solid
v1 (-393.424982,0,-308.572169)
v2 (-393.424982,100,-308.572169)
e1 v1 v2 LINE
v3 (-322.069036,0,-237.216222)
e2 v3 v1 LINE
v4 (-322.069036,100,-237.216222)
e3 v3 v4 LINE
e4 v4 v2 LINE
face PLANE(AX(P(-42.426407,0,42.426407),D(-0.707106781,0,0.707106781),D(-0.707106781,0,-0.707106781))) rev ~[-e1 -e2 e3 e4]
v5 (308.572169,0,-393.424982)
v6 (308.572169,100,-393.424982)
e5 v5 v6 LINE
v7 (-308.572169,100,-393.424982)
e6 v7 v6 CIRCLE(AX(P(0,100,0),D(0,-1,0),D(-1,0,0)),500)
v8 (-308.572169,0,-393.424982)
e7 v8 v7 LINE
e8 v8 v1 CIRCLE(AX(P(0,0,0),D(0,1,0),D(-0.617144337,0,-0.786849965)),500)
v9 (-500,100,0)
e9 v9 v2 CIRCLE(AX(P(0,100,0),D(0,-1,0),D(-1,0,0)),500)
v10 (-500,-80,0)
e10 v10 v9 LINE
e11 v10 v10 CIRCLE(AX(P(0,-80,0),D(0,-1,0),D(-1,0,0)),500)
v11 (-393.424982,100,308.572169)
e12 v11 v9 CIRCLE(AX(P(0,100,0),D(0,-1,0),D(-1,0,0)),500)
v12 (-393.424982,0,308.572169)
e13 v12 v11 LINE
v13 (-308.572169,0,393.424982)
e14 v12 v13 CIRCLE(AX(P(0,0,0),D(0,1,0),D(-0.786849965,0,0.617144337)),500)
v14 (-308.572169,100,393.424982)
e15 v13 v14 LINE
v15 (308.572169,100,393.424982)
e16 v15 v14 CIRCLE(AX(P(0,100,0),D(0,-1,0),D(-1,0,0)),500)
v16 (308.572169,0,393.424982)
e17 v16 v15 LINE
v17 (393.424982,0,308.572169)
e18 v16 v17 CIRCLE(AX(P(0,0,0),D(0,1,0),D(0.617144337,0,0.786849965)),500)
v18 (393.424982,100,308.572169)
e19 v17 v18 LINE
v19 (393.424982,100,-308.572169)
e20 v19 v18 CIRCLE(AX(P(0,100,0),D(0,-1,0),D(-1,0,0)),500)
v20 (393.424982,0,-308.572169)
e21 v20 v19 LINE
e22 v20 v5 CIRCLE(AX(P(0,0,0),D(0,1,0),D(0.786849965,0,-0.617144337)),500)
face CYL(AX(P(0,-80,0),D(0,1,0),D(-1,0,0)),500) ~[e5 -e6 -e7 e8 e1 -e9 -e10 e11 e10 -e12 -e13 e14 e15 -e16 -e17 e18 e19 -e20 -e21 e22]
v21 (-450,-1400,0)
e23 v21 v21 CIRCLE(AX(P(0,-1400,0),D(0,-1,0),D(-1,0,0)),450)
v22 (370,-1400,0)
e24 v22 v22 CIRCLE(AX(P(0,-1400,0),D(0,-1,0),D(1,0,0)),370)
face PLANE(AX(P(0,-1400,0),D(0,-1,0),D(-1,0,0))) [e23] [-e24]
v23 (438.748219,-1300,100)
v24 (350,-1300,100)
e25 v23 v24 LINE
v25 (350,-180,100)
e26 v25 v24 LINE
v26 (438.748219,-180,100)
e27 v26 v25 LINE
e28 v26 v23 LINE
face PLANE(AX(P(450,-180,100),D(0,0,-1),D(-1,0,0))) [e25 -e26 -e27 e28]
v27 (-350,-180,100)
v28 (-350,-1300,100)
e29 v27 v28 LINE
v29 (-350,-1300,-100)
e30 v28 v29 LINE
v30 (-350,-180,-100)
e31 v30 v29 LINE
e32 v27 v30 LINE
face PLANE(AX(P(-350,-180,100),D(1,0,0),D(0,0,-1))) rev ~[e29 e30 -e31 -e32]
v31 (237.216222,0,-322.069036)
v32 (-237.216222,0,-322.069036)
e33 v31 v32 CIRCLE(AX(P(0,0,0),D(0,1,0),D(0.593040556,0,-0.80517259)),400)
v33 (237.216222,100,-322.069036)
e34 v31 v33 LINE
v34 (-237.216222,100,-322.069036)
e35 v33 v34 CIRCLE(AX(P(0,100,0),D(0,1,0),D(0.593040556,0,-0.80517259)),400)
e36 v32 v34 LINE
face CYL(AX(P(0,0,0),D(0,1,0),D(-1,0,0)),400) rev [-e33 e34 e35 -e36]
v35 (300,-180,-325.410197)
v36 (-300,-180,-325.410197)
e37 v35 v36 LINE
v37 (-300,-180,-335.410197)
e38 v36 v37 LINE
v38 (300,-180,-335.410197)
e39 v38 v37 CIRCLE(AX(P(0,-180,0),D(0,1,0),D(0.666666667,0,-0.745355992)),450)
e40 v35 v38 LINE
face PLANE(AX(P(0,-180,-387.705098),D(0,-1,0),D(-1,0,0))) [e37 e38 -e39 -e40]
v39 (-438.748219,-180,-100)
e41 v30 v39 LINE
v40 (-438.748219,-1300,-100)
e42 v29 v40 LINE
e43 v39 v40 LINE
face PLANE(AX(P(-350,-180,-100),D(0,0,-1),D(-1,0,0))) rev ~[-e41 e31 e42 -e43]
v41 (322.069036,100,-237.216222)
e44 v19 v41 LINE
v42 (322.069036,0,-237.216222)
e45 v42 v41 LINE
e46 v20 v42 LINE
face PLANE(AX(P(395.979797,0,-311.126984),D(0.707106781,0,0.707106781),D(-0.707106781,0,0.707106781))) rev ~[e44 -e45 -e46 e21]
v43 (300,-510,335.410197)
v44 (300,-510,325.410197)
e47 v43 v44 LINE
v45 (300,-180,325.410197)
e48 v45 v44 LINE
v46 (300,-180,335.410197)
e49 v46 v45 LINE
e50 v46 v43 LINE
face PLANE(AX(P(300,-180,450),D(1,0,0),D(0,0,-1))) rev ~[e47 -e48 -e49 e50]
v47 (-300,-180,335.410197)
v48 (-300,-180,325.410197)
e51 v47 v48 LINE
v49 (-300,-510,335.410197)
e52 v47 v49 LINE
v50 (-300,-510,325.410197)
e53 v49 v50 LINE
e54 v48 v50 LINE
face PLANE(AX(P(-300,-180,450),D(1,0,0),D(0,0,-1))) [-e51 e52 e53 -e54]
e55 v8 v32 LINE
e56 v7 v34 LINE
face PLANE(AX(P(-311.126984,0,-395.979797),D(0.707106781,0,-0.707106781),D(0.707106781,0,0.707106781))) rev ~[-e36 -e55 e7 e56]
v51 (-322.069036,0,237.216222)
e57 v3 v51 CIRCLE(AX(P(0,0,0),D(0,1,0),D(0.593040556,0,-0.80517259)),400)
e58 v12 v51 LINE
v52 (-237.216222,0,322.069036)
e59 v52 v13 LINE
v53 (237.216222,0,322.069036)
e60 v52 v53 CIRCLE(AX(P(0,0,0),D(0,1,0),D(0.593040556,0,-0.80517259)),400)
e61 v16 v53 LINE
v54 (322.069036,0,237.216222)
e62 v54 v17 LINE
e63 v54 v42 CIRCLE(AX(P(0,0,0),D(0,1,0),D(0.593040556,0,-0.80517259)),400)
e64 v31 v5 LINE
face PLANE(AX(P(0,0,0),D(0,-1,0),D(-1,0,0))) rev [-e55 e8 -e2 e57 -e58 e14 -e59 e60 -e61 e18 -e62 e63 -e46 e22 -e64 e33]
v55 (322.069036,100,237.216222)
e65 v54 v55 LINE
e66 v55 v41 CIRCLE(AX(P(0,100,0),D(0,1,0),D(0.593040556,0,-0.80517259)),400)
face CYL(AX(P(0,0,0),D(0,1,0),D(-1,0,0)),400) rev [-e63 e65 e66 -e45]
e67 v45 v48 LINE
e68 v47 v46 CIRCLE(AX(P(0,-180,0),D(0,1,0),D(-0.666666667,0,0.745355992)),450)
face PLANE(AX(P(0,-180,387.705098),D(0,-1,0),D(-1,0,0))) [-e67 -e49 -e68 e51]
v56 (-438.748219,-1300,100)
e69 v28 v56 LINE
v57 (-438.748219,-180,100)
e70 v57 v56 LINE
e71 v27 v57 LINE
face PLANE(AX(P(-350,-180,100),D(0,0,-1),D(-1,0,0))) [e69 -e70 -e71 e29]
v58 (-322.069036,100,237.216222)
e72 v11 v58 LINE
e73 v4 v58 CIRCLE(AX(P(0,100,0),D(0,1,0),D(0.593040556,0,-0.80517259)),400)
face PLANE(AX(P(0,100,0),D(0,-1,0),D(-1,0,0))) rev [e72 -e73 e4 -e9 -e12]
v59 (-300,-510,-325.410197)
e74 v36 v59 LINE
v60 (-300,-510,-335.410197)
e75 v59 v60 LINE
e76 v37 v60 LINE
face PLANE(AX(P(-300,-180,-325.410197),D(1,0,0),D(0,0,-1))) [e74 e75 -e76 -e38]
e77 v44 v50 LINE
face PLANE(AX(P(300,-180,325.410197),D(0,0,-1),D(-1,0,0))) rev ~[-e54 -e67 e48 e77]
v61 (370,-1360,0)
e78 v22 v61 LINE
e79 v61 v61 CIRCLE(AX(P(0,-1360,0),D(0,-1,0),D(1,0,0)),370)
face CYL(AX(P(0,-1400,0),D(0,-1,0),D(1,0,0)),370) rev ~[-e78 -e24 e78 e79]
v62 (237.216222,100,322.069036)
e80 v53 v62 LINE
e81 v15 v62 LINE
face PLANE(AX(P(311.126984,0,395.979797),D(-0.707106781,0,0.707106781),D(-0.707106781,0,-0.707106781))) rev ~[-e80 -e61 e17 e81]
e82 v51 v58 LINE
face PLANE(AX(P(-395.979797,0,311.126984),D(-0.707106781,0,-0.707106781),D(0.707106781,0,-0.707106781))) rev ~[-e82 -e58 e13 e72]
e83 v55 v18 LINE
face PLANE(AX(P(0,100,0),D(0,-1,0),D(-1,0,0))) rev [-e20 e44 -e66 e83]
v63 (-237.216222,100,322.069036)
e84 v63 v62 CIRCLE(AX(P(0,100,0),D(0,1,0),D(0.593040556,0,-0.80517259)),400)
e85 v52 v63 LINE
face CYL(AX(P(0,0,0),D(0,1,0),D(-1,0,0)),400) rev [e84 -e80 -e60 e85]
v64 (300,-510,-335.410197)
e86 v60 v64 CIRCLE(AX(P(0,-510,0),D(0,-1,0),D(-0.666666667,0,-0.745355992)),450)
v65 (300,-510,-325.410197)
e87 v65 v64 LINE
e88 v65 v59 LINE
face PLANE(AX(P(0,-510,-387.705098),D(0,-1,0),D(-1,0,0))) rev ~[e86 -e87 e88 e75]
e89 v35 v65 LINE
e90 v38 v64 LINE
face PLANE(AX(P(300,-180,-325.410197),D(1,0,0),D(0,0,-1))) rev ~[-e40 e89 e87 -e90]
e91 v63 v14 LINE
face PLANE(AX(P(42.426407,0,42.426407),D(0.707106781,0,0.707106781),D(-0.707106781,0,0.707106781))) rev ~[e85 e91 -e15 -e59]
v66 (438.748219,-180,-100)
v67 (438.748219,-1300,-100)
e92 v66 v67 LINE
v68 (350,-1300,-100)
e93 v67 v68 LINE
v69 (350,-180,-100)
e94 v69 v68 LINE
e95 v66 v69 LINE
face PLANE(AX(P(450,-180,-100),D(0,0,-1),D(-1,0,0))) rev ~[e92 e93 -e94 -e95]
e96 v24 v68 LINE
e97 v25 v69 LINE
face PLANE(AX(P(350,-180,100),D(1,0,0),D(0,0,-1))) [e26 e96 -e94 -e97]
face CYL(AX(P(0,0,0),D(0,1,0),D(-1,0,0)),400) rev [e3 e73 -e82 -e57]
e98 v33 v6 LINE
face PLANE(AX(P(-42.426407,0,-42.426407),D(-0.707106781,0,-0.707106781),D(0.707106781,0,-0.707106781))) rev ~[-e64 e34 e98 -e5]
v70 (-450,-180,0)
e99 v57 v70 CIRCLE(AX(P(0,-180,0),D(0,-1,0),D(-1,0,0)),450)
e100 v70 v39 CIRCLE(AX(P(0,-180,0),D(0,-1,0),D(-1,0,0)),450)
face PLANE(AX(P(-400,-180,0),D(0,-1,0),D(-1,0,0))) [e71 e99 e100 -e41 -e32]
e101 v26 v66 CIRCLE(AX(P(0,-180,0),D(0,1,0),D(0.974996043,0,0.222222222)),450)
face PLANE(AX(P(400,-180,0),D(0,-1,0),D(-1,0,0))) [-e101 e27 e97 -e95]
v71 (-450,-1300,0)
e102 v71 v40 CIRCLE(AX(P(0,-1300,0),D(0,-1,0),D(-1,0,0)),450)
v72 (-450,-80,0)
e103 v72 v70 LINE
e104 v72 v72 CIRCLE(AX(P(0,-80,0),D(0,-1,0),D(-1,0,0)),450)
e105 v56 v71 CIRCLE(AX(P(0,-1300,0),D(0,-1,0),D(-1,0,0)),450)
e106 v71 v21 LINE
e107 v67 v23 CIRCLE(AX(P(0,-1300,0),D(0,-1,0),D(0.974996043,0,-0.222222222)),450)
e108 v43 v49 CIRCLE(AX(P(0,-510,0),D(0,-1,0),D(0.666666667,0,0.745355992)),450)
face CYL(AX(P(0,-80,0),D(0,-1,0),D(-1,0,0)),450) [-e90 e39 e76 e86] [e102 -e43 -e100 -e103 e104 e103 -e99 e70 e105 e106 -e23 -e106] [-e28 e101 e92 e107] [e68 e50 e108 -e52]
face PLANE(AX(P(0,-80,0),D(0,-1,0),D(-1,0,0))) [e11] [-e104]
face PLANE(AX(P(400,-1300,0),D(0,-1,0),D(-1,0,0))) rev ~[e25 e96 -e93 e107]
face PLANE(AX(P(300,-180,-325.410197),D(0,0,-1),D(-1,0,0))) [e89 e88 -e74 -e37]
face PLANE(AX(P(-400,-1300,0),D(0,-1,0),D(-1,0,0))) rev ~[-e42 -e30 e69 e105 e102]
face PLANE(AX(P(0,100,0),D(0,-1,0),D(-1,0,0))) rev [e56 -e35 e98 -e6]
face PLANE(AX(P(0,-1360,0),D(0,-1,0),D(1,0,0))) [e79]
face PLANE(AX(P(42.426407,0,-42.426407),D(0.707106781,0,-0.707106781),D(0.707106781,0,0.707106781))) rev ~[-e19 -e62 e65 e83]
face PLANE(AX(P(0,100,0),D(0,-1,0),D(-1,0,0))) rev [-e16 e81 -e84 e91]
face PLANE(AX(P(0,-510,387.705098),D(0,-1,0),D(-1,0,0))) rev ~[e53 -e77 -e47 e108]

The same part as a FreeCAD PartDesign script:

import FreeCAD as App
import Part
import Sketcher
Q = App.Units.Quantity

doc = App.newDocument("Part")
params = doc.addObject("Spreadsheet::Sheet", "Params")
for row, (alias, value) in enumerate([
    ("sketch1_width", "400 mm"),
    ("sketch1_width2", "450 mm"),
    ("sketch1_width3", "50 mm"),
    ("sketch1_height", "1400 mm"),
    ("sketch1_height2", "1320 mm"),
    ("revolution_angle", "360 deg"),
    ("sketch2_width", "100 mm"),
    ("sketch2_height", "200 mm"),
    ("pocket1_length", "1120 mm"),
    ("sketch3_width", "600 mm"),
    ("pocket2_length", "330 mm"),
    ("sketch4_diameter", "740 mm"),
    ("pocket3_length", "40 mm"),
    ("sketch5_length", "120 mm"),
    ("sketch5_length2", "500 mm"),
    ("pocket4_length", "100 mm"),
], start=1):
    params.set(f"A{row}", alias)
    params.set(f"B{row}", "=" + value)
    params.setAlias(f"B{row}", alias)

body = doc.addObject("PartDesign::Body", "Body")

sketch1 = doc.addObject("Sketcher::SketchObject", "Sketch")
body.addObject(sketch1)
sketch1.AttachmentSupport = (doc.XY_Plane, [""])
sketch1.MapMode = "FlatFace"
sketch1.addGeometry([
    Part.LineSegment(App.Vector(400, 0, 0), App.Vector(0, 0, 0)),
    Part.LineSegment(App.Vector(0, 0, 0), App.Vector(0, -1400, 0)),
    Part.LineSegment(App.Vector(0, -1400, 0), App.Vector(450, -1400, 0)),
    Part.LineSegment(App.Vector(450, -1400, 0), App.Vector(450, -80, 0)),
    Part.LineSegment(App.Vector(450, -80, 0), App.Vector(500, -80, 0)),
    Part.LineSegment(App.Vector(500, -80, 0), App.Vector(500, 100, 0)),
    Part.LineSegment(App.Vector(500, 100, 0), App.Vector(400, 100, 0)),
    Part.LineSegment(App.Vector(400, 100, 0), App.Vector(400, 0, 0)),
], False)
sketch1.addConstraint([
    Sketcher.Constraint("Coincident", 0, 2, 1, 1),
    Sketcher.Constraint("Coincident", 1, 2, 2, 1),
    Sketcher.Constraint("Coincident", 2, 2, 3, 1),
    Sketcher.Constraint("Coincident", 3, 2, 4, 1),
    Sketcher.Constraint("Coincident", 4, 2, 5, 1),
    Sketcher.Constraint("Coincident", 5, 2, 6, 1),
    Sketcher.Constraint("Coincident", 6, 2, 7, 1),
    Sketcher.Constraint("Coincident", 7, 2, 0, 1),
    Sketcher.Constraint("Horizontal", 0),
    Sketcher.Constraint("Vertical", 1),
    Sketcher.Constraint("Horizontal", 2),
    Sketcher.Constraint("Vertical", 3),
    Sketcher.Constraint("Horizontal", 4),
    Sketcher.Constraint("Vertical", 5),
    Sketcher.Constraint("Horizontal", 6),
    Sketcher.Constraint("Vertical", 7),
    Sketcher.Constraint("Coincident", 0, 2, -1, 1),
    Sketcher.Constraint("Equal", 6, 7),
    Sketcher.Constraint("DistanceX", 0, 2, 0, 1, 400.0),
    Sketcher.Constraint("DistanceX", 2, 1, 2, 2, 450.0),
    Sketcher.Constraint("DistanceX", 4, 1, 4, 2, 50.0),
    Sketcher.Constraint("DistanceY", 1, 2, 1, 1, 1400.0),
    Sketcher.Constraint("DistanceY", 3, 1, 3, 2, 1320.0),
])
sketch1.setExpression("Constraints[18]", "Params.sketch1_width")
sketch1.setExpression("Constraints[19]", "Params.sketch1_width2")
sketch1.setExpression("Constraints[20]", "Params.sketch1_width3")
sketch1.setExpression("Constraints[21]", "Params.sketch1_height")
sketch1.setExpression("Constraints[22]", "Params.sketch1_height2")
revolution = doc.addObject("PartDesign::Revolution", "Revolution")
body.addObject(revolution)
revolution.Profile = sketch1
revolution.ReferenceAxis = (sketch1, ["V_Axis"])
revolution.setExpression("Angle", "Params.revolution_angle")

sketch2 = doc.addObject("Sketcher::SketchObject", "Sketch001")
body.addObject(sketch2)
sketch2.AttachmentSupport = (doc.XZ_Plane, [""])
sketch2.MapMode = "FlatFace"
sketch2.AttachmentOffset = App.Placement(App.Vector(0, 0, 180), App.Rotation())
sketch2.addGeometry([
    Part.LineSegment(App.Vector(450, -100, 0), App.Vector(450, 100, 0)),
    Part.LineSegment(App.Vector(450, 100, 0), App.Vector(350, 100, 0)),
    Part.LineSegment(App.Vector(350, 100, 0), App.Vector(350, -100, 0)),
    Part.LineSegment(App.Vector(350, -100, 0), App.Vector(450, -100, 0)),
    Part.LineSegment(App.Vector(-350, -100, 0), App.Vector(-350, 100, 0)),
    Part.LineSegment(App.Vector(-350, 100, 0), App.Vector(-450, 100, 0)),
    Part.LineSegment(App.Vector(-450, 100, 0), App.Vector(-450, -100, 0)),
    Part.LineSegment(App.Vector(-450, -100, 0), App.Vector(-350, -100, 0)),
], False)
sketch2.addConstraint([
    Sketcher.Constraint("Coincident", 0, 2, 1, 1),
    Sketcher.Constraint("Coincident", 1, 2, 2, 1),
    Sketcher.Constraint("Coincident", 2, 2, 3, 1),
    Sketcher.Constraint("Coincident", 3, 2, 0, 1),
    Sketcher.Constraint("Coincident", 4, 2, 5, 1),
    Sketcher.Constraint("Coincident", 5, 2, 6, 1),
    Sketcher.Constraint("Coincident", 6, 2, 7, 1),
    Sketcher.Constraint("Coincident", 7, 2, 4, 1),
    Sketcher.Constraint("Vertical", 0),
    Sketcher.Constraint("Horizontal", 1),
    Sketcher.Constraint("Vertical", 2),
    Sketcher.Constraint("Horizontal", 3),
    Sketcher.Constraint("Vertical", 4),
    Sketcher.Constraint("Horizontal", 5),
    Sketcher.Constraint("Vertical", 6),
    Sketcher.Constraint("Horizontal", 7),
    Sketcher.Constraint("Symmetric", 2, 2, 4, 2, -1, 1),
    Sketcher.Constraint("Symmetric", 0, 2, 6, 2, -1, 1),
    Sketcher.Constraint("Horizontal", 1, 2, 4, 2),
    Sketcher.Constraint("DistanceX", 1, 2, 1, 1, 100.0),
    Sketcher.Constraint("DistanceY", 0, 1, 0, 2, 200.0),
    Sketcher.Constraint("DistanceX", -1, 1, 0, 2, 450.0),
])
sketch2.setExpression("Constraints[19]", "Params.sketch2_width")
sketch2.setExpression("Constraints[20]", "Params.sketch2_height")
pocket1 = doc.addObject("PartDesign::Pocket", "Pocket")
body.addObject(pocket1)
pocket1.Profile = sketch2
pocket1.setExpression("Length", "Params.pocket1_length")
pocket1.Reversed = True

sketch3 = doc.addObject("Sketcher::SketchObject", "Sketch002")
body.addObject(sketch3)
sketch3.AttachmentSupport = (doc.XZ_Plane, [""])
sketch3.MapMode = "FlatFace"
sketch3.AttachmentOffset = App.Placement(App.Vector(0, 0, 180), App.Rotation())
sketch3.addGeometry([
    Part.LineSegment(App.Vector(300, -450, 0), App.Vector(300, -325.410197, 0)),
    Part.LineSegment(App.Vector(300, -325.410197, 0), App.Vector(-300, -325.410197, 0)),
    Part.LineSegment(App.Vector(-300, -325.410197, 0), App.Vector(-300, -450, 0)),
    Part.LineSegment(App.Vector(-300, -450, 0), App.Vector(300, -450, 0)),
    Part.LineSegment(App.Vector(300, 325.410197, 0), App.Vector(300, 450, 0)),
    Part.LineSegment(App.Vector(300, 450, 0), App.Vector(-300, 450, 0)),
    Part.LineSegment(App.Vector(-300, 450, 0), App.Vector(-300, 325.410197, 0)),
    Part.LineSegment(App.Vector(-300, 325.410197, 0), App.Vector(300, 325.410197, 0)),
], False)
sketch3.addConstraint([
    Sketcher.Constraint("Coincident", 0, 2, 1, 1),
    Sketcher.Constraint("Coincident", 1, 2, 2, 1),
    Sketcher.Constraint("Coincident", 2, 2, 3, 1),
    Sketcher.Constraint("Coincident", 3, 2, 0, 1),
    Sketcher.Constraint("Coincident", 4, 2, 5, 1),
    Sketcher.Constraint("Coincident", 5, 2, 6, 1),
    Sketcher.Constraint("Coincident", 6, 2, 7, 1),
    Sketcher.Constraint("Coincident", 7, 2, 4, 1),
    Sketcher.Constraint("Vertical", 0),
    Sketcher.Constraint("Horizontal", 1),
    Sketcher.Constraint("Vertical", 2),
    Sketcher.Constraint("Horizontal", 3),
    Sketcher.Constraint("Vertical", 4),
    Sketcher.Constraint("Horizontal", 5),
    Sketcher.Constraint("Vertical", 6),
    Sketcher.Constraint("Horizontal", 7),
    Sketcher.Constraint("Symmetric", 2, 2, 4, 2, -1, 1),
    Sketcher.Constraint("Symmetric", 0, 2, 6, 2, -1, 1),
    Sketcher.Constraint("Vertical", 3, 2, 4, 2),
    Sketcher.Constraint("DistanceX", 1, 2, 1, 1, 600.0),
    Sketcher.Constraint("DistanceY", 2, 2, -1, 1, 450.0),
    Sketcher.Constraint("DistanceY", 0, 1, 0, 2, 124.589803),
])
sketch3.setExpression("Constraints[19]", "Params.sketch3_width")
pocket2 = doc.addObject("PartDesign::Pocket", "Pocket001")
body.addObject(pocket2)
pocket2.Profile = sketch3
pocket2.setExpression("Length", "Params.pocket2_length")
pocket2.Reversed = True

sketch4 = doc.addObject("Sketcher::SketchObject", "Sketch003")
body.addObject(sketch4)
sketch4.AttachmentSupport = (doc.XZ_Plane, [""])
sketch4.MapMode = "FlatFace"
sketch4.AttachmentOffset = App.Placement(App.Vector(0, 0, 1400), App.Rotation())
sketch4.addGeometry(Part.Circle(App.Vector(0, 0, 0), App.Vector(0, 0, 1), 370), False)
sketch4.addConstraint([
    Sketcher.Constraint("Coincident", 0, 3, -1, 1),
    Sketcher.Constraint("Diameter", 0, 740.0),
])
sketch4.setExpression("Constraints[1]", "Params.sketch4_diameter")
pocket3 = doc.addObject("PartDesign::Pocket", "Pocket002")
body.addObject(pocket3)
pocket3.Profile = sketch4
pocket3.setExpression("Length", "Params.pocket3_length")

sketch5 = doc.addObject("Sketcher::SketchObject", "Sketch004")
body.addObject(sketch5)
sketch5.AttachmentSupport = (doc.XZ_Plane, [""])
sketch5.MapMode = "FlatFace"
sketch5.addGeometry([
    Part.LineSegment(App.Vector(395.979797, -311.126984, 0), App.Vector(311.126984, -395.979797, 0)),
    Part.LineSegment(App.Vector(311.126984, -395.979797, 0), App.Vector(-42.426407, -42.426407, 0)),
    Part.LineSegment(App.Vector(-42.426407, -42.426407, 0), App.Vector(42.426407, 42.426407, 0)),
    Part.LineSegment(App.Vector(42.426407, 42.426407, 0), App.Vector(395.979797, -311.126984, 0)),
], False)
sketch5.addConstraint([
    Sketcher.Constraint("Coincident", 0, 2, 1, 1),
    Sketcher.Constraint("Coincident", 1, 2, 2, 1),
    Sketcher.Constraint("Coincident", 2, 2, 3, 1),
    Sketcher.Constraint("Coincident", 3, 2, 0, 1),
    Sketcher.Constraint("Symmetric", 1, 2, 2, 2, -1, 1),
    Sketcher.Constraint("Perpendicular", 0, 1),
    Sketcher.Constraint("Perpendicular", 1, 2),
    Sketcher.Constraint("Perpendicular", 2, 3),
    Sketcher.Constraint("Angle", 0, Q("-135 deg")),
    Sketcher.Constraint("Distance", 0, 120.0),
    Sketcher.Constraint("Distance", 1, 500.0),
])
sketch5.setExpression("Constraints[9]", "Params.sketch5_length")
sketch5.setExpression("Constraints[10]", "Params.sketch5_length2")
pocket4 = doc.addObject("PartDesign::Pocket", "Pocket003")
body.addObject(pocket4)
pocket4.Profile = sketch5
pocket4.setExpression("Length", "Params.pocket4_length")
doc.recompute()

polarpattern = doc.addObject("PartDesign::PolarPattern", "PolarPattern")
body.addObject(polarpattern)
polarpattern.Originals = [pocket4]
polarpattern.Axis = (doc.Y_Axis, [""])
polarpattern.Angle = 360
polarpattern.Occurrences = 4
body.Tip = polarpattern

doc.recompute()
